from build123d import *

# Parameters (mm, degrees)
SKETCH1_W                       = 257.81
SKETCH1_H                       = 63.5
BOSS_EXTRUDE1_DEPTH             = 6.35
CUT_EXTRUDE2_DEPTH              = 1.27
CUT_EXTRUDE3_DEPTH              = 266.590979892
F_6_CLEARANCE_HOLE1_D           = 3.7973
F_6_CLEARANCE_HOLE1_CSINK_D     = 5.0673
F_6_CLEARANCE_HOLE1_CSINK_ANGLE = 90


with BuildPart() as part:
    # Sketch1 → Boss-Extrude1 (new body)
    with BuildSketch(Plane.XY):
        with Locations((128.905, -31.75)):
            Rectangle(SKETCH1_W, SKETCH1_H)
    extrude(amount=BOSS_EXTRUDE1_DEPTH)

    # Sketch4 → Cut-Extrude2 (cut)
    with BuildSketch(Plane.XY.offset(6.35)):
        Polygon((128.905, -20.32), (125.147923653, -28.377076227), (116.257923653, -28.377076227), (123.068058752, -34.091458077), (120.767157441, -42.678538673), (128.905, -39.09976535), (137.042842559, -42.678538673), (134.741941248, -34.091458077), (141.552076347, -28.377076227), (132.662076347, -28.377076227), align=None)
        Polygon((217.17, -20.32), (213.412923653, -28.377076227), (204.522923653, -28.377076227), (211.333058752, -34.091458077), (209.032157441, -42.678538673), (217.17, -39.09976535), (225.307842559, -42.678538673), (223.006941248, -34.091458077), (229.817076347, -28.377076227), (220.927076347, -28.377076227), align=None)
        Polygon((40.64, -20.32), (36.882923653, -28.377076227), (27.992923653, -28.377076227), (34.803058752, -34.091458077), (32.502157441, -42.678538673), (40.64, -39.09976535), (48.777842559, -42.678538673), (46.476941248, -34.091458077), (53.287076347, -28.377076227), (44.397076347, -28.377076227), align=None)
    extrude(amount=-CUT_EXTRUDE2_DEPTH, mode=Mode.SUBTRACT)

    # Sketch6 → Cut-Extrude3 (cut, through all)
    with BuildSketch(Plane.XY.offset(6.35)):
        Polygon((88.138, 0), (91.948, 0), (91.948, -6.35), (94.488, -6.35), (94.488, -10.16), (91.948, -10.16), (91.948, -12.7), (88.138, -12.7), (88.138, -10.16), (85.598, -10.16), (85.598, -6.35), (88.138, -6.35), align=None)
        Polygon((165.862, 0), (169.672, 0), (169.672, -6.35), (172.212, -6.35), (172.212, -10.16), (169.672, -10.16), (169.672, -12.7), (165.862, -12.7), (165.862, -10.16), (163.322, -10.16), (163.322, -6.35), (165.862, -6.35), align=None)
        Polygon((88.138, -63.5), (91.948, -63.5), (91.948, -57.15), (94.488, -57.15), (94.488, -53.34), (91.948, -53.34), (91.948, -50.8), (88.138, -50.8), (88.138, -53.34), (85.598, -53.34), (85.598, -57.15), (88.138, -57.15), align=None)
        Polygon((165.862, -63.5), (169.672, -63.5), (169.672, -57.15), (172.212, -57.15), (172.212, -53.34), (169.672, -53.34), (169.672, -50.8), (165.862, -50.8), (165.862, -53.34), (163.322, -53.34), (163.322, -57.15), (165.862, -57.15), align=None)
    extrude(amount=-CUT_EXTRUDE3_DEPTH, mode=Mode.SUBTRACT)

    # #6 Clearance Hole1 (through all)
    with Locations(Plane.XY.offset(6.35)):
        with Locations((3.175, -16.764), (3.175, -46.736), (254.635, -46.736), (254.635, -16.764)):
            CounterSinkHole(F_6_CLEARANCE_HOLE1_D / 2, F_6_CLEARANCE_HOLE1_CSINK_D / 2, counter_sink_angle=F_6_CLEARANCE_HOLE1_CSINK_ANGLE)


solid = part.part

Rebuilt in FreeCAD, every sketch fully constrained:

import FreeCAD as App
import Part
import Sketcher

V = App.Vector
Q = App.Units.Quantity


def add_polygon(sketch, points):
    """Adds a closed chain of lines whose ends are joined by coincident constraints."""
    first, n = sketch.GeometryCount, len(points)
    for a, b in zip(points, points[1:] + points[:1]):
        sketch.addGeometry(Part.LineSegment(App.Vector(*a, 0), App.Vector(*b, 0)), False)
    for i in range(n):
        sketch.addConstraint(Sketcher.Constraint("Coincident", first + i, 2, first + (i + 1) % n, 1))

doc = App.newDocument("Part")
body = doc.addObject("PartDesign::Body", "Body")

# Sketch on XY plane
sketch1 = body.newObject("Sketcher::SketchObject", "Sketch")
sketch1.AttachmentSupport = (doc.getObject("XY_Plane"), [""])
sketch1.MapMode = "FlatFace"
add_polygon(sketch1, [(0, 0), (0, -64), (258, -64), (258, 0)])  # lines 0-3
sketch1.addConstraint([
    Sketcher.Constraint("Vertical", 0),
    Sketcher.Constraint("Horizontal", 1),
    Sketcher.Constraint("Vertical", 2),
    Sketcher.Constraint("Horizontal", 3),
    Sketcher.Constraint("Coincident", 3, 2, -1, 1),
    Sketcher.Constraint("DistanceY", 0, 2, 0, 1, Q("2.5 in")),
    Sketcher.Constraint("DistanceX", 1, 1, 1, 2, Q("10.15 in")),
])
pad1 = body.newObject("PartDesign::Pad", "Pad")
pad1.Profile = sketch1
pad1.Length = Q("0.25 in")

# Sketch on XY plane
sketch2 = body.newObject("Sketcher::SketchObject", "Sketch001")
sketch2.AttachmentSupport = (doc.getObject("XY_Plane"), [""])
sketch2.MapMode = "FlatFace"
sketch2.AttachmentOffset = App.Placement(V(0, 0, 0.25 * 25.4), App.Rotation())
add_polygon(sketch2, [(129, -20), (125, -28), (116, -28), (123, -34), (121, -43), (129, -39), (137, -43), (135, -34), (142, -28), (133, -28)])  # lines 0-9
add_polygon(sketch2, [(217, -20), (213, -28), (205, -28), (211, -34), (209, -43), (217, -39), (225, -43), (223, -34), (230, -28), (221, -28)])  # lines 10-19
add_polygon(sketch2, [(41, -20), (37, -28), (28, -28), (35, -34), (33, -43), (41, -39), (49, -43), (46, -34), (53, -28), (44, -28)])  # lines 20-29
sketch2.addConstraint([
    Sketcher.Constraint("Horizontal", 1),
    Sketcher.Constraint("Horizontal", 8),
    Sketcher.Constraint("Horizontal", 11),
    Sketcher.Constraint("Horizontal", 18),
    Sketcher.Constraint("Horizontal", 21),
    Sketcher.Constraint("Horizontal", 28),
    Sketcher.Constraint("Parallel", 0, 10),
    Sketcher.Constraint("Parallel", 2, 12),
    Sketcher.Constraint("Parallel", 3, 13),
    Sketcher.Constraint("Parallel", 4, 14),
    Sketcher.Constraint("Parallel", 5, 15),
    Sketcher.Constraint("Parallel", 6, 16),
    Sketcher.Constraint("Parallel", 7, 17),
    Sketcher.Constraint("Parallel", 9, 19),
    Sketcher.Constraint("Parallel", 10, 20),
    Sketcher.Constraint("Parallel", 12, 22),
    Sketcher.Constraint("Parallel", 13, 23),
    Sketcher.Constraint("Parallel", 14, 24),
    Sketcher.Constraint("Parallel", 15, 25),
    Sketcher.Constraint("Parallel", 16, 26),
    Sketcher.Constraint("Parallel", 17, 27),
    Sketcher.Constraint("Parallel", 19, 29),
    Sketcher.Constraint("Horizontal", 3, 2, 5, 2),
    Sketcher.Constraint("Horizontal", 2, 2, 6, 2),
    Sketcher.Constraint("Horizontal", 1, 2, 7, 2),
    Sketcher.Constraint("Horizontal", 8, 2, 10, 2),
    Sketcher.Constraint("Horizontal", 6, 2, 12, 2),
    Sketcher.Constraint("Horizontal", 5, 2, 13, 2),
    Sketcher.Constraint("Horizontal", 4, 2, 14, 2),
    Sketcher.Constraint("Horizontal", 13, 2, 15, 2),
    Sketcher.Constraint("Horizontal", 12, 2, 16, 2),
    Sketcher.Constraint("Horizontal", 11, 2, 17, 2),
    Sketcher.Constraint("Horizontal", 9, 2, 19, 2),
    Sketcher.Constraint("Horizontal", 18, 2, 20, 2),
    Sketcher.Constraint("Horizontal", 16, 2, 22, 2),
    Sketcher.Constraint("Horizontal", 15, 2, 23, 2),
    Sketcher.Constraint("Horizontal", 14, 2, 24, 2),
    Sketcher.Constraint("Horizontal", 23, 2, 25, 2),
    Sketcher.Constraint("Horizontal", 22, 2, 26, 2),
    Sketcher.Constraint("Horizontal", 21, 2, 27, 2),
    Sketcher.Constraint("Horizontal", 19, 2, 29, 2),
    Sketcher.Constraint("Vertical", 4, 2, 9, 2),
    Sketcher.Constraint("Vertical", 14, 2, 19, 2),
    Sketcher.Constraint("Vertical", 24, 2, 29, 2),
    Sketcher.Constraint("Equal", 1, 8),
    Sketcher.Constraint("Equal", 0, 2),
    Sketcher.Constraint("Equal", 2, 3),
    Sketcher.Constraint("Equal", 3, 4),
    Sketcher.Constraint("Equal", 4, 5),
    Sketcher.Constraint("Equal", 5, 6),
    Sketcher.Constraint("Equal", 6, 7),
    Sketcher.Constraint("Angle", 0, Q("-115 deg")),
    Sketcher.Constraint("Angle", 2, Q("-40 deg")),
    Sketcher.Constraint("Angle", 3, Q("-105 deg")),
    Sketcher.Constraint("DistanceX", 1, 2, 1, 1, Q("0.35 in")),
    Sketcher.Constraint("DistanceY", 9, 2, -1, 1, Q("0.8 in")),
    Sketcher.Constraint("DistanceX", -1, 1, 24, 2, Q("1.6 in")),
    Sketcher.Constraint("Distance", 0, Q("0.35 in")),
    Sketcher.Constraint("DistanceX", -1, 1, 14, 2, Q("8.55 in")),
    Sketcher.Constraint("DistanceX", -1, 1, 4, 2, Q("5.075 in")),
])
pocket1 = body.newObject("PartDesign::Pocket", "Pocket")
pocket1.Profile = sketch2
pocket1.Length = Q("0.05 in")

# Sketch on XY plane
sketch3 = body.newObject("Sketcher::SketchObject", "Sketch002")
sketch3.AttachmentSupport = (doc.getObject("XY_Plane"), [""])
sketch3.MapMode = "FlatFace"
sketch3.AttachmentOffset = App.Placement(V(0, 0, 0.25 * 25.4), App.Rotation())
add_polygon(sketch3, [(91.9, 0), (88.1, 0), (88.1, -6.3), (85.6, -6.3), (85.6, -10.2), (88.1, -10.2), (88.1, -12.7), (91.9, -12.7), (91.9, -10.2), (94.5, -10.2), (94.5, -6.3), (91.9, -6.3)])  # lines 0-11
add_polygon(sketch3, [(169.7, 0), (165.9, 0), (165.9, -6.3), (163.3, -6.3), (163.3, -10.2), (165.9, -10.2), (165.9, -12.7), (169.7, -12.7), (169.7, -10.2), (172.2, -10.2), (172.2, -6.3), (169.7, -6.3)])  # lines 12-23
add_polygon(sketch3, [(88.1, -63.5), (91.9, -63.5), (91.9, -57.1), (94.5, -57.1), (94.5, -53.3), (91.9, -53.3), (91.9, -50.8), (88.1, -50.8), (88.1, -53.3), (85.6, -53.3), (85.6, -57.1), (88.1, -57.1)])  # lines 24-35
add_polygon(sketch3, [(165.9, -63.5), (169.7, -63.5), (169.7, -57.1), (172.2, -57.1), (172.2, -53.3), (169.7, -53.3), (169.7, -50.8), (165.9, -50.8), (165.9, -53.3), (163.3, -53.3), (163.3, -57.1), (165.9, -57.1)])  # lines 36-47
sketch3.addConstraint([
    Sketcher.Constraint("Horizontal", 0),
    Sketcher.Constraint("Vertical", 1),
    Sketcher.Constraint("Horizontal", 2),
    Sketcher.Constraint("Vertical", 3),
    Sketcher.Constraint("Horizontal", 4),
    Sketcher.Constraint("Vertical", 5),
    Sketcher.Constraint("Horizontal", 6),
    Sketcher.Constraint("Vertical", 7),
    Sketcher.Constraint("Horizontal", 8),
    Sketcher.Constraint("Vertical", 9),
    Sketcher.Constraint("Horizontal", 10),
    Sketcher.Constraint("Vertical", 11),
    Sketcher.Constraint("Horizontal", 12),
    Sketcher.Constraint("Vertical", 13),
    Sketcher.Constraint("Horizontal", 14),
    Sketcher.Constraint("Vertical", 15),
    Sketcher.Constraint("Horizontal", 16),
    Sketcher.Constraint("Vertical", 17),
    Sketcher.Constraint("Horizontal", 18),
    Sketcher.Constraint("Vertical", 19),
    Sketcher.Constraint("Horizontal", 20),
    Sketcher.Constraint("Vertical", 21),
    Sketcher.Constraint("Horizontal", 22),
    Sketcher.Constraint("Vertical", 23),
    Sketcher.Constraint("Horizontal", 24),
    Sketcher.Constraint("Vertical", 25),
    Sketcher.Constraint("Horizontal", 26),
    Sketcher.Constraint("Vertical", 27),
    Sketcher.Constraint("Horizontal", 28),
    Sketcher.Constraint("Vertical", 29),
    Sketcher.Constraint("Horizontal", 30),
    Sketcher.Constraint("Vertical", 31),
    Sketcher.Constraint("Horizontal", 32),
    Sketcher.Constraint("Vertical", 33),
    Sketcher.Constraint("Horizontal", 34),
    Sketcher.Constraint("Vertical", 35),
    Sketcher.Constraint("Horizontal", 36),
    Sketcher.Constraint("Vertical", 37),
    Sketcher.Constraint("Horizontal", 38),
    Sketcher.Constraint("Vertical", 39),
    Sketcher.Constraint("Horizontal", 40),
    Sketcher.Constraint("Vertical", 41),
    Sketcher.Constraint("Horizontal", 42),
    Sketcher.Constraint("Vertical", 43),
    Sketcher.Constraint("Horizontal", 44),
    Sketcher.Constraint("Vertical", 45),
    Sketcher.Constraint("Horizontal", 46),
    Sketcher.Constraint("Vertical", 47),
    Sketcher.Constraint("PointOnObject", 0, 2, -1),
    Sketcher.Constraint("PointOnObject", 12, 2, -1),
    Sketcher.Constraint("Horizontal", 4, 2, 7, 2),
    Sketcher.Constraint("Horizontal", 2, 2, 9, 2),
    Sketcher.Constraint("Horizontal", 10, 2, 13, 2),
    Sketcher.Constraint("Horizontal", 8, 2, 15, 2),
    Sketcher.Constraint("Horizontal", 6, 2, 17, 2),
    Sketcher.Constraint("Horizontal", 16, 2, 19, 2),
    Sketcher.Constraint("Horizontal", 14, 2, 21, 2),
    Sketcher.Constraint("Horizontal", 28, 2, 31, 2),
    Sketcher.Constraint("Horizontal", 26, 2, 33, 2),
    Sketcher.Constraint("Horizontal", 35, 2, 36, 2),
    Sketcher.Constraint("Horizontal", 34, 2, 37, 2),
    Sketcher.Constraint("Horizontal", 32, 2, 39, 2),
    Sketcher.Constraint("Horizontal", 30, 2, 41, 2),
    Sketcher.Constraint("Horizontal", 40, 2, 43, 2),
    Sketcher.Constraint("Horizontal", 38, 2, 45, 2),
    Sketcher.Constraint("Vertical", 1, 2, 4, 2),
    Sketcher.Constraint("Vertical", 7, 2, 10, 2),
    Sketcher.Constraint("Vertical", 13, 2, 16, 2),
    Sketcher.Constraint("Vertical", 19, 2, 22, 2),
    Sketcher.Constraint("Vertical", 11, 2, 24, 2),
    Sketcher.Constraint("Vertical", 9, 2, 26, 2),
    Sketcher.Constraint("Vertical", 25, 2, 28, 2),
    Sketcher.Constraint("Vertical", 5, 2, 30, 2),
    Sketcher.Constraint("Vertical", 3, 2, 32, 2),
    Sketcher.Constraint("Vertical", 31, 2, 34, 2),
    Sketcher.Constraint("Vertical", 23, 2, 36, 2),
    Sketcher.Constraint("Vertical", 21, 2, 38, 2),
    Sketcher.Constraint("Vertical", 37, 2, 40, 2),
    Sketcher.Constraint("Vertical", 17, 2, 42, 2),
    Sketcher.Constraint("Vertical", 15, 2, 44, 2),
    Sketcher.Constraint("Vertical", 43, 2, 46, 2),
    Sketcher.Constraint("Equal", 4, 8),
    Sketcher.Constraint("Equal", 6, 12),
    Sketcher.Constraint("Equal", 10, 14),
    Sketcher.Constraint("Equal", 16, 20),
    Sketcher.Constraint("Equal", 42, 3),
    Sketcher.Constraint("Equal", 46, 5),
    Sketcher.Constraint("Equal", 23, 25),
    Sketcher.Constraint("Equal", 21, 27),
    Sketcher.Constraint("Equal", 19, 29),
    Sketcher.Constraint("DistanceX", 2, 2, 2, 1, Q("0.1 in")),
    Sketcher.Constraint("DistanceY", 29, 2, -1, 1, Q("2 in")),
    Sketcher.Constraint("DistanceX", 0, 2, 0, 1, Q("0.15 in")),
    Sketcher.Constraint("DistanceY", 1, 2, 1, 1, Q("0.25 in")),
    Sketcher.Constraint("DistanceX", -1, 1, 0, 2, Q("3.47 in")),
    Sketcher.Constraint("DistanceX", -1, 1, 12, 2, Q("6.53 in")),
])
pocket2 = body.newObject("PartDesign::Pocket", "Pocket001")
pocket2.Profile = sketch3
pocket2.Type = "ThroughAll"

# Sketch on XY plane
sketch4 = body.newObject("Sketcher::SketchObject", "Sketch003")
sketch4.AttachmentSupport = (doc.getObject("XY_Plane"), [""])
sketch4.MapMode = "FlatFace"
sketch4.AttachmentOffset = App.Placement(V(0, 0, 0.25 * 25.4), App.Rotation())
sketch4.addGeometry([
    Part.Circle(V(3.2, -16.8, 0), V(0, 0, 1), 1.9),
    Part.Circle(V(3.2, -46.7, 0), V(0, 0, 1), 1.9),
    Part.Circle(V(254.6, -46.7, 0), V(0, 0, 1), 1.9),
    Part.Circle(V(254.6, -16.8, 0), V(0, 0, 1), 1.9),
], False)
sketch4.addConstraint([
    Sketcher.Constraint("Equal", 0, 1),
    Sketcher.Constraint("Equal", 1, 2),
    Sketcher.Constraint("Equal", 2, 3),
    Sketcher.Constraint("Horizontal", 1, 3, 2, 3),
    Sketcher.Constraint("Horizontal", 0, 3, 3, 3),
    Sketcher.Constraint("Vertical", 0, 3, 1, 3),
    Sketcher.Constraint("Vertical", 2, 3, 3, 3),
    Sketcher.Constraint("Diameter", 0, Q("0.1495 in")),
    Sketcher.Constraint("DistanceX", 1, 3, 2, 3, Q("9.9 in")),
    Sketcher.Constraint("DistanceY", 0, 3, -1, 1, Q("0.66 in")),
    Sketcher.Constraint("DistanceY", 1, 3, -1, 1, Q("1.84 in")),
    Sketcher.Constraint("DistanceX", -1, 1, 0, 3, Q("0.125 in")),
])
doc.recompute()
hole = body.newObject("PartDesign::Hole", "Hole")
hole.Profile = sketch4
hole.ThreadType = "None"
hole.Diameter = Q("0.1495 in")
hole.DepthType = "ThroughAll"
hole.HoleCutType = "Countersink"
hole.HoleCutDiameter = Q("0.1995 in")
hole.HoleCutCountersinkAngle = 90

doc.recompute()
